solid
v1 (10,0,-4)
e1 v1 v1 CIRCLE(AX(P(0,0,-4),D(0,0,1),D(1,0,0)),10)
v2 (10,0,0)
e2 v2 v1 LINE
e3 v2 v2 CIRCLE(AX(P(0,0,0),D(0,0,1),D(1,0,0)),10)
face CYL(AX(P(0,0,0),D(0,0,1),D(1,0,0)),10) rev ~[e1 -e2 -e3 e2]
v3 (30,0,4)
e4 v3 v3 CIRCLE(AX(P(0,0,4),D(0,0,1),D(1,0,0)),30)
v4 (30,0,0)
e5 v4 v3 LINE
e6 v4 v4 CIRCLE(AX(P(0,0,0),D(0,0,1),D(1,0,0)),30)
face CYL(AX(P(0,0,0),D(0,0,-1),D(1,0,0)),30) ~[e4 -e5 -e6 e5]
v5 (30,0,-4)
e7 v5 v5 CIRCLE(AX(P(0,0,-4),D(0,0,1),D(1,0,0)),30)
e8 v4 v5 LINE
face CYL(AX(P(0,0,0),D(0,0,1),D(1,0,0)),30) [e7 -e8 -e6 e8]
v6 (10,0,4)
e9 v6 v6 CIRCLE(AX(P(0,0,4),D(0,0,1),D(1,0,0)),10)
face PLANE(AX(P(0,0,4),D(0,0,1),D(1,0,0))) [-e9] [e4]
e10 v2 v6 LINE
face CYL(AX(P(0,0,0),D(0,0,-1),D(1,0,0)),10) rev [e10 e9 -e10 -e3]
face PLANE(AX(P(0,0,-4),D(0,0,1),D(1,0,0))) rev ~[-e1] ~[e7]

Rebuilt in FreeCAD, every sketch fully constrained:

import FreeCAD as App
import Part
import Sketcher

V = App.Vector

doc = App.newDocument("Part")
params = doc.addObject("Spreadsheet::Sheet", "Params")
for row, (alias, value) in enumerate([
    ("sketch1_diameter", "60 mm"),
    ("sketch1_diameter2", "20 mm"),
    ("pad1_length", "8 mm"),
], start=1):
    params.set(f"A{row}", alias)
    params.set(f"B{row}", "=" + value)
    params.setAlias(f"B{row}", alias)

body = doc.addObject("PartDesign::Body", "Body")

sketch1 = body.newObject("Sketcher::SketchObject", "Sketch")
sketch1.AttachmentSupport = (doc.getObject("XY_Plane"), [""])
sketch1.MapMode = "FlatFace"
sketch1.addGeometry(Part.Circle(V(0, 0, 0), V(0, 0, 1), 30), False)
sketch1.addGeometry(Part.Circle(V(0, 0, 0), V(0, 0, 1), 10), False)
sketch1.addConstraint(Sketcher.Constraint("Coincident", 0, 3, -1, 1))
sketch1.addConstraint(Sketcher.Constraint("Coincident", 1, 3, -1, 1))
sketch1.addConstraint(Sketcher.Constraint("Diameter", 0, 60.0))
sketch1.addConstraint(Sketcher.Constraint("Diameter", 1, 20.0))
sketch1.setExpression("Constraints[2]", "Params.sketch1_diameter")
sketch1.setExpression("Constraints[3]", "Params.sketch1_diameter2")
pad1 = body.newObject("PartDesign::Pad", "Pad")
pad1.Profile = sketch1
pad1.setExpression("Length", "Params.pad1_length")
pad1.Midplane = True

doc.recompute()
